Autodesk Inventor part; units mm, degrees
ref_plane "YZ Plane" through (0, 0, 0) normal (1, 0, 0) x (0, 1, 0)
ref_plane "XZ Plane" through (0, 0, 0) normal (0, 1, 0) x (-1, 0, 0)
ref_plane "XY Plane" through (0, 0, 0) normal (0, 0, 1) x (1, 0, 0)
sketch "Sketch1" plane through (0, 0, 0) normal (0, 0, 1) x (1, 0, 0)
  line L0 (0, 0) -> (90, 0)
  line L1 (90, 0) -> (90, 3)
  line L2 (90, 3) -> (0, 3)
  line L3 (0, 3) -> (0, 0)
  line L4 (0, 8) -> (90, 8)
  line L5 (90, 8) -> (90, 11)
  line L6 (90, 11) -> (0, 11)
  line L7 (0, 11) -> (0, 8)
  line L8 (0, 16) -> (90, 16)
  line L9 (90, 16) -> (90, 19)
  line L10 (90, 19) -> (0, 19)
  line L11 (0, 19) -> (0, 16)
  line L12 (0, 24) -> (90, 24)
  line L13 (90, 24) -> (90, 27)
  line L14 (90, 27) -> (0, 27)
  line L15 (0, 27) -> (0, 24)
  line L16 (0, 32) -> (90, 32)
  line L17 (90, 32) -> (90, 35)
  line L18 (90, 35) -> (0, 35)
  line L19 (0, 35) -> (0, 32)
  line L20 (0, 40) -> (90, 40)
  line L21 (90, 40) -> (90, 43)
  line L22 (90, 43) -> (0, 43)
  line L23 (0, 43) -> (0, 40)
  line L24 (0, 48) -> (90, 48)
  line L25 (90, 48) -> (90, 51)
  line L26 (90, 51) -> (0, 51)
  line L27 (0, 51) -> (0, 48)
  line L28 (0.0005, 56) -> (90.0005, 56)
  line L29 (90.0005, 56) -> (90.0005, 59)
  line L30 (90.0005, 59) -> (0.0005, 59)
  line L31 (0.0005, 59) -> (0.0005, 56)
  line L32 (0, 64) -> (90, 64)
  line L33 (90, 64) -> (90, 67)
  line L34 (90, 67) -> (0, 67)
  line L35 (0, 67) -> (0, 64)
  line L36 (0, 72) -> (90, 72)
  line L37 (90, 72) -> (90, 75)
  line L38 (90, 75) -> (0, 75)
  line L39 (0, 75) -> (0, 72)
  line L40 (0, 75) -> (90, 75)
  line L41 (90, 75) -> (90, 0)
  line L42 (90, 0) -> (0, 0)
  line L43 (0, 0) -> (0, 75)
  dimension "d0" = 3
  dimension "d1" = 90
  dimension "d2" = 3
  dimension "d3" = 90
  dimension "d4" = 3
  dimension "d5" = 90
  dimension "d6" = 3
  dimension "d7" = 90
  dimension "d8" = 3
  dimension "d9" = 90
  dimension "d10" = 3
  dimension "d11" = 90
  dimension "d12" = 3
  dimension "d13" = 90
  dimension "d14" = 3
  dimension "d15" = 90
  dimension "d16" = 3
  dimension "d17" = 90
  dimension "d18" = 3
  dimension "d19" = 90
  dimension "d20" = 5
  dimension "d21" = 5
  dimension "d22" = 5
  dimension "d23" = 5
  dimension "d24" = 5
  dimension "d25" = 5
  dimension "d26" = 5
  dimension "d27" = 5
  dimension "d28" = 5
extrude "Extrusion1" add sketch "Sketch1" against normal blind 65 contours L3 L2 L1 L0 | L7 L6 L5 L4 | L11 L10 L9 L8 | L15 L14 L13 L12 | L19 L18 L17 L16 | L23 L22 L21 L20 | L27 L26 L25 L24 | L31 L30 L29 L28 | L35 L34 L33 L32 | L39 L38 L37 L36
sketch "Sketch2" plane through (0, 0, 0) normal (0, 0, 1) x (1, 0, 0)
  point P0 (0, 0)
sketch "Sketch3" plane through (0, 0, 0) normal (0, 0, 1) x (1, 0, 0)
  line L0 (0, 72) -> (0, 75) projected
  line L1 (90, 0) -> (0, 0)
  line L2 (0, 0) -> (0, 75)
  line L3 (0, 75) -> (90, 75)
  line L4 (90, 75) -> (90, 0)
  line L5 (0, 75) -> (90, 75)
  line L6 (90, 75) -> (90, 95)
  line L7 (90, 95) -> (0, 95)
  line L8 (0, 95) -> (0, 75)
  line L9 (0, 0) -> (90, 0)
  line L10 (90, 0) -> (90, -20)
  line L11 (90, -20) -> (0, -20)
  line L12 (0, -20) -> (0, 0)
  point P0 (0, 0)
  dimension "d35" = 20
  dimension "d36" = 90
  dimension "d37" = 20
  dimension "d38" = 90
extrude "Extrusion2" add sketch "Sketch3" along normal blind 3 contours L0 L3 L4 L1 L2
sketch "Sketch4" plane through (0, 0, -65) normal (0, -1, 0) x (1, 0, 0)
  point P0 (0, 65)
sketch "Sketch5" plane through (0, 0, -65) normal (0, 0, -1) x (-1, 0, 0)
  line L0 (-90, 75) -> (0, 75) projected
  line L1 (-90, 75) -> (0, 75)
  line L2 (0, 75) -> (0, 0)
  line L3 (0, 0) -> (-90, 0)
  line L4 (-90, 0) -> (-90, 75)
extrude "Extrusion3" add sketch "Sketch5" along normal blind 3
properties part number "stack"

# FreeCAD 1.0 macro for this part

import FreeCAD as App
import Part
import Sketcher
Q = App.Units.Quantity

doc = App.newDocument("Part")
body = doc.addObject("PartDesign::Body", "Body")
body.AllowCompound = True

# Sketch on XY plane
sketch1 = body.newObject("Sketcher::SketchObject", "Sketch")
sketch1.AttachmentSupport = (doc.getObject("XY_Plane"), [""])
sketch1.MapMode = "FlatFace"
sketch1.addGeometry([
    Part.LineSegment(App.Vector(0, 3, 0), App.Vector(0, 0, 0)),  # 0
    Part.LineSegment(App.Vector(0, 0, 0), App.Vector(90, 0, 0)),  # 1
    Part.LineSegment(App.Vector(90, 0, 0), App.Vector(90, 3, 0)),  # 2
    Part.LineSegment(App.Vector(90, 3, 0), App.Vector(0, 3, 0)),  # 3
    Part.LineSegment(App.Vector(0, 11, 0), App.Vector(0, 8, 0)),  # 4
    Part.LineSegment(App.Vector(0, 8, 0), App.Vector(90, 8, 0)),  # 5
    Part.LineSegment(App.Vector(90, 8, 0), App.Vector(90, 11, 0)),  # 6
    Part.LineSegment(App.Vector(90, 11, 0), App.Vector(0, 11, 0)),  # 7
    Part.LineSegment(App.Vector(0, 19, 0), App.Vector(0, 16, 0)),  # 8
    Part.LineSegment(App.Vector(0, 16, 0), App.Vector(90, 16, 0)),  # 9
    Part.LineSegment(App.Vector(90, 16, 0), App.Vector(90, 19, 0)),  # 10
    Part.LineSegment(App.Vector(90, 19, 0), App.Vector(0, 19, 0)),  # 11
    Part.LineSegment(App.Vector(0, 27, 0), App.Vector(0, 24, 0)),  # 12
    Part.LineSegment(App.Vector(0, 24, 0), App.Vector(90, 24, 0)),  # 13
    Part.LineSegment(App.Vector(90, 24, 0), App.Vector(90, 27, 0)),  # 14
    Part.LineSegment(App.Vector(90, 27, 0), App.Vector(0, 27, 0)),  # 15
    Part.LineSegment(App.Vector(0, 35, 0), App.Vector(0, 32, 0)),  # 16
    Part.LineSegment(App.Vector(0, 32, 0), App.Vector(90, 32, 0)),  # 17
    Part.LineSegment(App.Vector(90, 32, 0), App.Vector(90, 35, 0)),  # 18
    Part.LineSegment(App.Vector(90, 35, 0), App.Vector(0, 35, 0)),  # 19
    Part.LineSegment(App.Vector(0, 43, 0), App.Vector(0, 40, 0)),  # 20
    Part.LineSegment(App.Vector(0, 40, 0), App.Vector(90, 40, 0)),  # 21
    Part.LineSegment(App.Vector(90, 40, 0), App.Vector(90, 43, 0)),  # 22
    Part.LineSegment(App.Vector(90, 43, 0), App.Vector(0, 43, 0)),  # 23
    Part.LineSegment(App.Vector(0, 51, 0), App.Vector(0, 48, 0)),  # 24
    Part.LineSegment(App.Vector(0, 48, 0), App.Vector(90, 48, 0)),  # 25
    Part.LineSegment(App.Vector(90, 48, 0), App.Vector(90, 51, 0)),  # 26
    Part.LineSegment(App.Vector(90, 51, 0), App.Vector(0, 51, 0)),  # 27
    Part.LineSegment(App.Vector(0, 59, 0), App.Vector(0, 56, 0)),  # 28
    Part.LineSegment(App.Vector(0, 56, 0), App.Vector(90, 56, 0)),  # 29
    Part.LineSegment(App.Vector(90, 56, 0), App.Vector(90, 59, 0)),  # 30
    Part.LineSegment(App.Vector(90, 59, 0), App.Vector(0, 59, 0)),  # 31
    Part.LineSegment(App.Vector(0, 67, 0), App.Vector(0, 64, 0)),  # 32
    Part.LineSegment(App.Vector(0, 64, 0), App.Vector(90, 64, 0)),  # 33
    Part.LineSegment(App.Vector(90, 64, 0), App.Vector(90, 67, 0)),  # 34
    Part.LineSegment(App.Vector(90, 67, 0), App.Vector(0, 67, 0)),  # 35
    Part.LineSegment(App.Vector(0, 75, 0), App.Vector(0, 72, 0)),  # 36
    Part.LineSegment(App.Vector(0, 72, 0), App.Vector(90, 72, 0)),  # 37
    Part.LineSegment(App.Vector(90, 72, 0), App.Vector(90, 75, 0)),  # 38
    Part.LineSegment(App.Vector(90, 75, 0), App.Vector(0, 75, 0)),  # 39
], False)
sketch1.addConstraint([
    Sketcher.Constraint("Coincident", 0, 2, 1, 1),
    Sketcher.Constraint("Coincident", 1, 2, 2, 1),
    Sketcher.Constraint("Coincident", 2, 2, 3, 1),
    Sketcher.Constraint("Coincident", 3, 2, 0, 1),
    Sketcher.Constraint("Coincident", 4, 2, 5, 1),
    Sketcher.Constraint("Coincident", 5, 2, 6, 1),
    Sketcher.Constraint("Coincident", 6, 2, 7, 1),
    Sketcher.Constraint("Coincident", 7, 2, 4, 1),
    Sketcher.Constraint("Coincident", 8, 2, 9, 1),
    Sketcher.Constraint("Coincident", 9, 2, 10, 1),
    Sketcher.Constraint("Coincident", 10, 2, 11, 1),
    Sketcher.Constraint("Coincident", 11, 2, 8, 1),
    Sketcher.Constraint("Coincident", 12, 2, 13, 1),
    Sketcher.Constraint("Coincident", 13, 2, 14, 1),
    Sketcher.Constraint("Coincident", 14, 2, 15, 1),
    Sketcher.Constraint("Coincident", 15, 2, 12, 1),
    Sketcher.Constraint("Coincident", 16, 2, 17, 1),
    Sketcher.Constraint("Coincident", 17, 2, 18, 1),
    Sketcher.Constraint("Coincident", 18, 2, 19, 1),
    Sketcher.Constraint("Coincident", 19, 2, 16, 1),
    Sketcher.Constraint("Coincident", 20, 2, 21, 1),
    Sketcher.Constraint("Coincident", 21, 2, 22, 1),
    Sketcher.Constraint("Coincident", 22, 2, 23, 1),
    Sketcher.Constraint("Coincident", 23, 2, 20, 1),
    Sketcher.Constraint("Coincident", 24, 2, 25, 1),
    Sketcher.Constraint("Coincident", 25, 2, 26, 1),
    Sketcher.Constraint("Coincident", 26, 2, 27, 1),
    Sketcher.Constraint("Coincident", 27, 2, 24, 1),
    Sketcher.Constraint("Coincident", 28, 2, 29, 1),
    Sketcher.Constraint("Coincident", 29, 2, 30, 1),
    Sketcher.Constraint("Coincident", 30, 2, 31, 1),
    Sketcher.Constraint("Coincident", 31, 2, 28, 1),
    Sketcher.Constraint("Coincident", 32, 2, 33, 1),
    Sketcher.Constraint("Coincident", 33, 2, 34, 1),
    Sketcher.Constraint("Coincident", 34, 2, 35, 1),
    Sketcher.Constraint("Coincident", 35, 2, 32, 1),
    Sketcher.Constraint("Coincident", 36, 2, 37, 1),
    Sketcher.Constraint("Coincident", 37, 2, 38, 1),
    Sketcher.Constraint("Coincident", 38, 2, 39, 1),
    Sketcher.Constraint("Coincident", 39, 2, 36, 1),
    Sketcher.Constraint("Vertical", 0),
    Sketcher.Constraint("Horizontal", 1),
    Sketcher.Constraint("Vertical", 2),
    Sketcher.Constraint("Horizontal", 3),
    Sketcher.Constraint("Vertical", 4),
    Sketcher.Constraint("Horizontal", 5),
    Sketcher.Constraint("Vertical", 6),
    Sketcher.Constraint("Horizontal", 7),
    Sketcher.Constraint("Vertical", 8),
    Sketcher.Constraint("Horizontal", 9),
    Sketcher.Constraint("Vertical", 10),
    Sketcher.Constraint("Horizontal", 11),
    Sketcher.Constraint("Vertical", 12),
    Sketcher.Constraint("Horizontal", 13),
    Sketcher.Constraint("Vertical", 14),
    Sketcher.Constraint("Horizontal", 15),
    Sketcher.Constraint("Vertical", 16),
    Sketcher.Constraint("Horizontal", 17),
    Sketcher.Constraint("Vertical", 18),
    Sketcher.Constraint("Horizontal", 19),
    Sketcher.Constraint("Vertical", 20),
    Sketcher.Constraint("Horizontal", 21),
    Sketcher.Constraint("Vertical", 22),
    Sketcher.Constraint("Horizontal", 23),
    Sketcher.Constraint("Vertical", 24),
    Sketcher.Constraint("Horizontal", 25),
    Sketcher.Constraint("Vertical", 26),
    Sketcher.Constraint("Horizontal", 27),
    Sketcher.Constraint("Vertical", 28),
    Sketcher.Constraint("Horizontal", 29),
    Sketcher.Constraint("Vertical", 30),
    Sketcher.Constraint("Horizontal", 31),
    Sketcher.Constraint("Vertical", 32),
    Sketcher.Constraint("Horizontal", 33),
    Sketcher.Constraint("Vertical", 34),
    Sketcher.Constraint("Horizontal", 35),
    Sketcher.Constraint("Vertical", 36),
    Sketcher.Constraint("Horizontal", 37),
    Sketcher.Constraint("Vertical", 38),
    Sketcher.Constraint("Horizontal", 39),
    Sketcher.Constraint("Coincident", 0, 2, -1, 1),
    Sketcher.Constraint("PointOnObject", 4, 2, -2),
    Sketcher.Constraint("PointOnObject", 8, 2, -2),
    Sketcher.Constraint("PointOnObject", 12, 2, -2),
    Sketcher.Constraint("PointOnObject", 16, 2, -2),
    Sketcher.Constraint("PointOnObject", 20, 2, -2),
    Sketcher.Constraint("PointOnObject", 24, 2, -2),
    Sketcher.Constraint("PointOnObject", 32, 2, -2),
    Sketcher.Constraint("PointOnObject", 36, 2, -2),
    Sketcher.Constraint("Vertical", 2, 2, 5, 2),
    Sketcher.Constraint("Vertical", 6, 2, 9, 2),
    Sketcher.Constraint("Vertical", 10, 2, 13, 2),
    Sketcher.Constraint("Vertical", 14, 2, 17, 2),
    Sketcher.Constraint("Vertical", 18, 2, 21, 2),
    Sketcher.Constraint("Vertical", 22, 2, 25, 2),
    Sketcher.Constraint("Vertical", 26, 2, 33, 2),
    Sketcher.Constraint("Vertical", 34, 2, 37, 2),
    Sketcher.Constraint("Equal", 27, 29),
    Sketcher.Constraint("Equal", 2, 4),
    Sketcher.Constraint("Equal", 6, 8),
    Sketcher.Constraint("Equal", 10, 12),
    Sketcher.Constraint("Equal", 14, 16),
    Sketcher.Constraint("Equal", 18, 20),
    Sketcher.Constraint("Equal", 22, 24),
    Sketcher.Constraint("Equal", 26, 28),
    Sketcher.Constraint("Equal", 30, 32),
    Sketcher.Constraint("Equal", 34, 36),
    Sketcher.Constraint("DistanceX", 1, 1, 1, 2, Q("90 mm")),
    Sketcher.Constraint("DistanceY", 0, 2, 0, 1, Q("3 mm")),
    Sketcher.Constraint("DistanceY", 3, 2, 4, 2, Q("5 mm")),
    Sketcher.Constraint("DistanceY", 7, 2, 8, 2, Q("5 mm")),
    Sketcher.Constraint("DistanceY", 11, 2, 12, 2, Q("5 mm")),
    Sketcher.Constraint("DistanceY", 15, 2, 16, 2, Q("5 mm")),
    Sketcher.Constraint("DistanceY", 19, 2, 20, 2, Q("5 mm")),
    Sketcher.Constraint("DistanceY", 23, 2, 24, 2, Q("5 mm")),
    Sketcher.Constraint("DistanceY", 27, 2, 28, 2, Q("5 mm")),
    Sketcher.Constraint("DistanceY", 31, 2, 32, 2, Q("5 mm")),
    Sketcher.Constraint("DistanceY", 35, 2, 36, 2, Q("5 mm")),
    Sketcher.Constraint("DistanceX", -1, 1, 29, 2, Q("90.0005 mm")),
])
pad1 = body.newObject("PartDesign::Pad", "Pad")
pad1.Profile = sketch1
pad1.Length = 65
pad1.Reversed = True

# Sketch on XY plane
sketch2 = body.newObject("Sketcher::SketchObject", "Sketch001")
sketch2.AttachmentSupport = (doc.getObject("XY_Plane"), [""])
sketch2.MapMode = "FlatFace"
sketch2.addGeometry([
    Part.LineSegment(App.Vector(0, 75, 0), App.Vector(0, 0, 0)),
    Part.LineSegment(App.Vector(0, 0, 0), App.Vector(90, 0, 0)),
    Part.LineSegment(App.Vector(90, 0, 0), App.Vector(90, 75, 0)),
    Part.LineSegment(App.Vector(90, 75, 0), App.Vector(0, 75, 0)),
], False)
sketch2.addConstraint([
    Sketcher.Constraint("Coincident", 0, 2, 1, 1),
    Sketcher.Constraint("Coincident", 1, 2, 2, 1),
    Sketcher.Constraint("Coincident", 2, 2, 3, 1),
    Sketcher.Constraint("Coincident", 3, 2, 0, 1),
    Sketcher.Constraint("Vertical", 0),
    Sketcher.Constraint("Horizontal", 1),
    Sketcher.Constraint("Vertical", 2),
    Sketcher.Constraint("Horizontal", 3),
    Sketcher.Constraint("Coincident", 0, 2, -1, 1),
    Sketcher.Constraint("DistanceX", 1, 1, 1, 2, Q("90 mm")),
    Sketcher.Constraint("DistanceY", 0, 2, 0, 1, Q("75 mm")),
])
pad2 = body.newObject("PartDesign::Pad", "Pad001")
pad2.Profile = sketch2
pad2.Length = 3

# Sketch on XY plane
sketch3 = body.newObject("Sketcher::SketchObject", "Sketch002")
sketch3.AttachmentSupport = (doc.getObject("XY_Plane"), [""])
sketch3.MapMode = "FlatFace"
sketch3.AttachmentOffset = App.Placement(App.Vector(0, 0, -65), App.Rotation())
sketch3.addGeometry([
    Part.LineSegment(App.Vector(0, 75, 0), App.Vector(90, 75, 0)),
    Part.LineSegment(App.Vector(90, 75, 0), App.Vector(90, 0, 0)),
    Part.LineSegment(App.Vector(90, 0, 0), App.Vector(0, 0, 0)),
    Part.LineSegment(App.Vector(0, 0, 0), App.Vector(0, 75, 0)),
], False)
sketch3.addConstraint([
    Sketcher.Constraint("Coincident", 0, 2, 1, 1),
    Sketcher.Constraint("Coincident", 1, 2, 2, 1),
    Sketcher.Constraint("Coincident", 2, 2, 3, 1),
    Sketcher.Constraint("Coincident", 3, 2, 0, 1),
    Sketcher.Constraint("Horizontal", 0),
    Sketcher.Constraint("Vertical", 1),
    Sketcher.Constraint("Horizontal", 2),
    Sketcher.Constraint("Vertical", 3),
    Sketcher.Constraint("Coincident", 2, 2, -1, 1),
    Sketcher.Constraint("DistanceX", 0, 1, 0, 2, Q("90 mm")),
    Sketcher.Constraint("DistanceY", 1, 2, 1, 1, Q("75 mm")),
])
pad3 = body.newObject("PartDesign::Pad", "Pad002")
pad3.Profile = sketch3
pad3.Length = 3
pad3.Reversed = True

doc.recompute()
